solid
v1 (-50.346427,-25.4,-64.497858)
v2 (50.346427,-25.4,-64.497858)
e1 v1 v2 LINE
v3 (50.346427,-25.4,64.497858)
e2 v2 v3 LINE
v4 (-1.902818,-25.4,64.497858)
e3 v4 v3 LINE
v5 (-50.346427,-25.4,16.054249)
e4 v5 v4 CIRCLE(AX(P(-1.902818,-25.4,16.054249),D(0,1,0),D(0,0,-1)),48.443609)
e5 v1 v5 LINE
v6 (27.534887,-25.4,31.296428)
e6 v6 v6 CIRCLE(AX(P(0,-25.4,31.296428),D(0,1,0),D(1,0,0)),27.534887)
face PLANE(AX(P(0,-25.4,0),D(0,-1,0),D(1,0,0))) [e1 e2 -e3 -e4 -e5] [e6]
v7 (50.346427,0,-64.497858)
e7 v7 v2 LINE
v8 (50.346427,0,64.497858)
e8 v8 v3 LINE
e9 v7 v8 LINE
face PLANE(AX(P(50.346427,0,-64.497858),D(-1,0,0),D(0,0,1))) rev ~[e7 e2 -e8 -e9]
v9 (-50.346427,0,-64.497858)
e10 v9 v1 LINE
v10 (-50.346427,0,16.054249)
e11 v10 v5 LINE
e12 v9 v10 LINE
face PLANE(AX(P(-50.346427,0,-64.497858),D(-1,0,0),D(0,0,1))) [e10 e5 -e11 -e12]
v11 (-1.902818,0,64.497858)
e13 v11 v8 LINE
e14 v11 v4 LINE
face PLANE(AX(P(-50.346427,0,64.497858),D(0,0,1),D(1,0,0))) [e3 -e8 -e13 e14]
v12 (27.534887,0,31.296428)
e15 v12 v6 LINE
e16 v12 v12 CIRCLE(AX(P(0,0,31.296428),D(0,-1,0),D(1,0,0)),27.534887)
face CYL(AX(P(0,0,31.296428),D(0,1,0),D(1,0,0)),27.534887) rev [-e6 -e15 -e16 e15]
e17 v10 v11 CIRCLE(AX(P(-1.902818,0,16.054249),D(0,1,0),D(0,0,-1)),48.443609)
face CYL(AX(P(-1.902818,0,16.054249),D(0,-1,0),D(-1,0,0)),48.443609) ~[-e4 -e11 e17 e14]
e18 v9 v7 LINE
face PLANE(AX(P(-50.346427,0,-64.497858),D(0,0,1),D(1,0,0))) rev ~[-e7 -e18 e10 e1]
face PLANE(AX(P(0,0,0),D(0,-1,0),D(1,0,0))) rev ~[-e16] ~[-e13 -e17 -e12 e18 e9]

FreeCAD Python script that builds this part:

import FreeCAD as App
import Part
import Sketcher
from FreeCAD import Vector
Q = App.Units.Quantity


def edges_at(feature, points):
    """Names of the edges that pass closest to the given points."""
    edges = feature.Shape.Edges
    near = lambda p: min(range(len(edges)), key=lambda i: edges[i].distToShape(Part.Vertex(*p))[0])
    return sorted({f"Edge{near(p) + 1}" for p in points})


def add_polygon(sketch, points):
    """Adds a closed chain of lines whose ends are joined by coincident constraints."""
    first, n = sketch.GeometryCount, len(points)
    for a, b in zip(points, points[1:] + points[:1]):
        sketch.addGeometry(Part.LineSegment(App.Vector(*a, 0), App.Vector(*b, 0)), False)
    for i in range(n):
        sketch.addConstraint(Sketcher.Constraint("Coincident", first + i, 2, first + (i + 1) % n, 1))

doc = App.newDocument("Part")
params = doc.addObject("Spreadsheet::Sheet", "Params")
for row, (alias, value) in enumerate([
    ("pad1_length", "1 in"),
    ("pocket1_length", "6.73 in"),
    ("fillet_radius", "48.443609 mm"),
], start=1):
    params.set(f"A{row}", alias)
    params.set(f"B{row}", "=" + value)
    params.setAlias(f"B{row}", alias)

body = doc.addObject("PartDesign::Body", "Body")

sketch1 = body.newObject("Sketcher::SketchObject", "Sketch")
sketch1.AttachmentSupport = (doc.getObject("XZ_Plane"), [""])
sketch1.MapMode = "FlatFace"
add_polygon(sketch1, [(-50.346427, 64.497858), (-50.346427, -64.497858), (50.346427, -64.497858), (50.346427, 64.497858)])
sketch1.addConstraint([
    Sketcher.Constraint("Vertical", 0),
    Sketcher.Constraint("Horizontal", 1),
    Sketcher.Constraint("Vertical", 2),
    Sketcher.Constraint("Horizontal", 3),
    Sketcher.Constraint("Symmetric", 0, 2, 2, 2, -1, 1),
    Sketcher.Constraint("DistanceX", 1, 1, 1, 2, Q("100.692854 mm")),
    Sketcher.Constraint("DistanceY", 0, 2, 0, 1, Q("128.995716 mm")),
])
pad1 = body.newObject("PartDesign::Pad", "Pad")
pad1.Profile = sketch1
pad1.setExpression("Length", "Params.pad1_length")

sketch2 = body.newObject("Sketcher::SketchObject", "Sketch001")
sketch2.AttachmentSupport = (doc.getObject("XZ_Plane"), [""])
sketch2.MapMode = "FlatFace"
sketch2.addGeometry(Part.Circle(Vector(0, 31.296428, 0), Vector(0, 0, 1), 27.534887), False)
sketch2.addConstraint([
    Sketcher.Constraint("PointOnObject", 0, 3, -2),
    Sketcher.Constraint("Diameter", 0, Q("55.069774 mm")),
    Sketcher.Constraint("DistanceY", -1, 1, 0, 3, Q("31.296428 mm")),
])
pocket1 = body.newObject("PartDesign::Pocket", "Pocket")
pocket1.Profile = sketch2
pocket1.setExpression("Length", "Params.pocket1_length")
pocket1.Reversed = True
doc.recompute()

fillet = body.newObject("PartDesign::Fillet", "Fillet")
fillet.Base = (pocket1, edges_at(pocket1, [(-50.346, -12.7, 64.498)]))
fillet.setExpression("Radius", "Params.fillet_radius")

doc.recompute()
